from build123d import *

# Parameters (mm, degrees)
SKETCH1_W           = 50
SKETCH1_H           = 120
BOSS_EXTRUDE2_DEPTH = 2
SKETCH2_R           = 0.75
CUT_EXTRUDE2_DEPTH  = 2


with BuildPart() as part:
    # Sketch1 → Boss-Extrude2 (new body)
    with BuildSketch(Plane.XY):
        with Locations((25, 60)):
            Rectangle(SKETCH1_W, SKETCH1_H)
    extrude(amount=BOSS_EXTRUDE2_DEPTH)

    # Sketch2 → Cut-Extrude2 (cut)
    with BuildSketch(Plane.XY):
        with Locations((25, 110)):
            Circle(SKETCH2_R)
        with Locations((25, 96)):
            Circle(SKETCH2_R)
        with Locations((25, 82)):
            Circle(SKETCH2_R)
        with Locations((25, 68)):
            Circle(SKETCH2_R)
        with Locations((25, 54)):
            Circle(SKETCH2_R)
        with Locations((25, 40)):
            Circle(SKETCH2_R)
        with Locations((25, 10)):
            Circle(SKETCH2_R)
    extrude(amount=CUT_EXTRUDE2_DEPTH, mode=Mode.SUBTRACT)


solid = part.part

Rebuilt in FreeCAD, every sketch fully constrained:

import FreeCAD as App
import Part
import Sketcher
from FreeCAD import Vector

doc = App.newDocument("Part")
body = doc.addObject("PartDesign::Body", "Body")

# Sketch on XY plane
sketch1 = body.newObject("Sketcher::SketchObject", "Sketch")
sketch1.AttachmentSupport = (doc.getObject("XY_Plane"), [""])
sketch1.MapMode = "FlatFace"
sketch1.addGeometry([
    Part.LineSegment(Vector(0, 120, 0), Vector(0, 0, 0)),
    Part.LineSegment(Vector(0, 0, 0), Vector(50, 0, 0)),
    Part.LineSegment(Vector(50, 0, 0), Vector(50, 120, 0)),
    Part.LineSegment(Vector(50, 120, 0), Vector(0, 120, 0)),
], False)
sketch1.addConstraint([
    Sketcher.Constraint("Coincident", 0, 2, 1, 1),
    Sketcher.Constraint("Coincident", 1, 2, 2, 1),
    Sketcher.Constraint("Coincident", 2, 2, 3, 1),
    Sketcher.Constraint("Coincident", 3, 2, 0, 1),
    Sketcher.Constraint("Vertical", 0),
    Sketcher.Constraint("Horizontal", 1),
    Sketcher.Constraint("Vertical", 2),
    Sketcher.Constraint("Horizontal", 3),
    Sketcher.Constraint("Coincident", 0, 2, -1, 1),
    Sketcher.Constraint("DistanceX", 1, 1, 1, 2, 50.0),
    Sketcher.Constraint("DistanceY", 0, 2, 0, 1, 120.0),
])
pad1 = body.newObject("PartDesign::Pad", "Pad")
pad1.Profile = sketch1
pad1.Length = 2

# Sketch on XY plane
sketch2 = body.newObject("Sketcher::SketchObject", "Sketch001")
sketch2.AttachmentSupport = (doc.getObject("XY_Plane"), [""])
sketch2.MapMode = "FlatFace"
sketch2.addGeometry([
    Part.Circle(Vector(25, 110, 0), Vector(0, 0, 1), 0.75),  # 0
    Part.Circle(Vector(25, 96, 0), Vector(0, 0, 1), 0.75),  # 1
    Part.Circle(Vector(25, 82, 0), Vector(0, 0, 1), 0.75),  # 2
    Part.Circle(Vector(25, 68, 0), Vector(0, 0, 1), 0.75),  # 3
    Part.Circle(Vector(25, 54, 0), Vector(0, 0, 1), 0.75),  # 4
    Part.Circle(Vector(25, 40, 0), Vector(0, 0, 1), 0.75),  # 5
    Part.Circle(Vector(25, 10, 0), Vector(0, 0, 1), 0.75),  # 6
], False)
sketch2.addConstraint([
    Sketcher.Constraint("Equal", 0, 1),
    Sketcher.Constraint("Equal", 1, 2),
    Sketcher.Constraint("Equal", 2, 3),
    Sketcher.Constraint("Equal", 3, 4),
    Sketcher.Constraint("Equal", 4, 5),
    Sketcher.Constraint("Equal", 5, 6),
    Sketcher.Constraint("Vertical", 0, 3, 1, 3),
    Sketcher.Constraint("Vertical", 1, 3, 2, 3),
    Sketcher.Constraint("Vertical", 2, 3, 3, 3),
    Sketcher.Constraint("Vertical", 3, 3, 4, 3),
    Sketcher.Constraint("Vertical", 4, 3, 5, 3),
    Sketcher.Constraint("Vertical", 5, 3, 6, 3),
    Sketcher.Constraint("Diameter", 0, 1.5),
    Sketcher.Constraint("DistanceX", -1, 1, 0, 3, 25.0),
    Sketcher.Constraint("DistanceY", -1, 1, 0, 3, 110.0),
    Sketcher.Constraint("DistanceY", -1, 1, 1, 3, 96.0),
    Sketcher.Constraint("DistanceY", -1, 1, 2, 3, 82.0),
    Sketcher.Constraint("DistanceY", -1, 1, 3, 3, 68.0),
    Sketcher.Constraint("DistanceY", -1, 1, 4, 3, 54.0),
    Sketcher.Constraint("DistanceY", -1, 1, 5, 3, 40.0),
    Sketcher.Constraint("DistanceY", -1, 1, 6, 3, 10.0),
])
pocket1 = body.newObject("PartDesign::Pocket", "Pocket")
pocket1.Profile = sketch2
pocket1.Length = 2
pocket1.Reversed = True

doc.recompute()
